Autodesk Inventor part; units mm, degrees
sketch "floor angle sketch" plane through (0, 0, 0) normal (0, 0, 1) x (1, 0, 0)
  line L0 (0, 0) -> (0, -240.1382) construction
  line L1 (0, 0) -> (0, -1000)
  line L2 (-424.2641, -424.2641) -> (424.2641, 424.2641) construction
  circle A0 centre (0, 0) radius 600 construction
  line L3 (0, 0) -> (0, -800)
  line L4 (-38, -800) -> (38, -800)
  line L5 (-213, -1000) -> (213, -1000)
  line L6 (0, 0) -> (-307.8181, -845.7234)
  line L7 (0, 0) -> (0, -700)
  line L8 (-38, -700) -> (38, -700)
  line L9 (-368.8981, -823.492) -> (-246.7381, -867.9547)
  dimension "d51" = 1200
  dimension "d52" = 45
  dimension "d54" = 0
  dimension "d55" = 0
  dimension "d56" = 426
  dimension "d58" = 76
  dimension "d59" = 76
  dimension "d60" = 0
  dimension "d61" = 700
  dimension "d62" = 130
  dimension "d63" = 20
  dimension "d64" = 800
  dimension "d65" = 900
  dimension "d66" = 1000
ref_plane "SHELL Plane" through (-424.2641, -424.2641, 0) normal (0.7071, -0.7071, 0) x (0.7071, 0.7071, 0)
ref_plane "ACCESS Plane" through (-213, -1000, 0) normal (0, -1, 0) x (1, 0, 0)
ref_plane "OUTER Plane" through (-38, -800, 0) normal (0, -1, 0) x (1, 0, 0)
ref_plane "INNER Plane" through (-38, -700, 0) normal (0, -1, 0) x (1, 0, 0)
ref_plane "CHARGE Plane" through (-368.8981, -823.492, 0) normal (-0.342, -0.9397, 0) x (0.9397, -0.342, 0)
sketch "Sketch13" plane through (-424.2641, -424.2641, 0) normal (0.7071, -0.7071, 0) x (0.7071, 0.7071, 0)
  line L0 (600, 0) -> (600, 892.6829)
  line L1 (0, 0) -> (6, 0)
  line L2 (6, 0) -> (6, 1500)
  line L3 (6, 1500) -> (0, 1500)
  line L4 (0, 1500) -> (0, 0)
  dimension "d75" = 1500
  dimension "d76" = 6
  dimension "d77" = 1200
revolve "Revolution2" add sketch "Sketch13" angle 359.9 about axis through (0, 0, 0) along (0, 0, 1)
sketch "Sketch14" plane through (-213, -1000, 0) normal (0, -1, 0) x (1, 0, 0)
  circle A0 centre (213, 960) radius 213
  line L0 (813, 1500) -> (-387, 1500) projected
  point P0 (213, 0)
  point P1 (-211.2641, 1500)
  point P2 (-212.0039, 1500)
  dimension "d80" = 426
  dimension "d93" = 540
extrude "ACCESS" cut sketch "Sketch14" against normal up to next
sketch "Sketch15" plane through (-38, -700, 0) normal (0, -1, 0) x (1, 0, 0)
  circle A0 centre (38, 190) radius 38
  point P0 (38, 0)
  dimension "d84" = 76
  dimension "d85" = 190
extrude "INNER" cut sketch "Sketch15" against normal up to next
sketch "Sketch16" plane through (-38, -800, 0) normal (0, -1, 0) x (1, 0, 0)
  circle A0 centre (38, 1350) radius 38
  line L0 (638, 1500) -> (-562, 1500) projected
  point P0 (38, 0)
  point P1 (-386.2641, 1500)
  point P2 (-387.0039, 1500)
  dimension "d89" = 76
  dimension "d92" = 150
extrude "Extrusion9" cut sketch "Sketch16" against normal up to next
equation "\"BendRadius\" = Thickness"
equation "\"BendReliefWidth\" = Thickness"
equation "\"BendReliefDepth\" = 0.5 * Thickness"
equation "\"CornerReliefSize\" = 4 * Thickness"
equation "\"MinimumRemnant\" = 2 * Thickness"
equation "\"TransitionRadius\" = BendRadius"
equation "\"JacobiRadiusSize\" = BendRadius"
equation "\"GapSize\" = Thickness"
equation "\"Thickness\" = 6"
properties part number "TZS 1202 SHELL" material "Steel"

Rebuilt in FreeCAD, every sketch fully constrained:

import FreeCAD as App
import Part
import Sketcher
Q = App.Units.Quantity

doc = App.newDocument("Part")
body = doc.addObject("PartDesign::Body", "Body")

sketch1 = doc.addObject("Sketcher::SketchObject", "Sketch")
body.addObject(sketch1)
sketch1.Placement = App.Placement(App.Vector(-424.2641, -424.2641, 0), App.Rotation(App.Vector(0.707106781, 0.707106781, 0), App.Vector(0, 0, 0.999999999), App.Vector(0.707106781, -0.707106781, 0), "ZXY"))
sketch1.addGeometry(Part.LineSegment(App.Vector(0, 1499.999998, 0), App.Vector(0, 0, 0)), False)
sketch1.addGeometry(Part.LineSegment(App.Vector(0, 0, 0), App.Vector(6, 0, 0)), False)
sketch1.addGeometry(Part.LineSegment(App.Vector(6, 0, 0), App.Vector(6, 1499.999998, 0)), False)
sketch1.addGeometry(Part.LineSegment(App.Vector(6, 1499.999998, 0), App.Vector(0, 1499.999998, 0)), False)
sketch1.addGeometry(Part.LineSegment(App.Vector(600.000044, 0, 0), App.Vector(600.000044, 1499.999997, 0)), True)
sketch1.addConstraint(Sketcher.Constraint("Coincident", 0, 2, 1, 1))
sketch1.addConstraint(Sketcher.Constraint("Coincident", 1, 2, 2, 1))
sketch1.addConstraint(Sketcher.Constraint("Coincident", 2, 2, 3, 1))
sketch1.addConstraint(Sketcher.Constraint("Coincident", 3, 2, 0, 1))
sketch1.addConstraint(Sketcher.Constraint("Vertical", 0))
sketch1.addConstraint(Sketcher.Constraint("Horizontal", 1))
sketch1.addConstraint(Sketcher.Constraint("Vertical", 2))
sketch1.addConstraint(Sketcher.Constraint("Horizontal", 3))
sketch1.addConstraint(Sketcher.Constraint("Vertical", 4))
sketch1.addConstraint(Sketcher.Constraint("Coincident", 0, 2, -1, 1))
sketch1.addConstraint(Sketcher.Constraint("PointOnObject", 4, 1, -1))
sketch1.addConstraint(Sketcher.Constraint("Horizontal", 3, 2, 4, 2))
sketch1.addConstraint(Sketcher.Constraint("DistanceX", 1, 1, 1, 2, Q("6 mm")))
sketch1.addConstraint(Sketcher.Constraint("DistanceY", 0, 2, 0, 1, Q("1500 mm")))
sketch1.addConstraint(Sketcher.Constraint("DistanceX", -1, 1, 4, 1, Q("600 mm")))
revolution = doc.addObject("PartDesign::Revolution", "Revolution")
body.addObject(revolution)
revolution.Profile = sketch1
revolution.ReferenceAxis = (sketch1, ["Axis0"])
revolution.Angle = 359.9

sketch2 = doc.addObject("Sketcher::SketchObject", "Sketch001")
body.addObject(sketch2)
sketch2.AttachmentSupport = (doc.XZ_Plane, [""])
sketch2.MapMode = "FlatFace"
sketch2.AttachmentOffset = App.Placement(App.Vector(0, 0, 1000), App.Rotation())
sketch2.addGeometry(Part.Circle(App.Vector(0, 960, 0), App.Vector(0, 0, 1), 213), False)
sketch2.addConstraint(Sketcher.Constraint("PointOnObject", 0, 3, -2))
sketch2.addConstraint(Sketcher.Constraint("Diameter", 0, Q("426 mm")))
sketch2.addConstraint(Sketcher.Constraint("DistanceY", -1, 1, 0, 3, Q("960 mm")))
pocket1 = doc.addObject("PartDesign::Pocket", "Pocket")
body.addObject(pocket1)
pocket1.Profile = sketch2
pocket1.Length = 445.5029

sketch3 = doc.addObject("Sketcher::SketchObject", "Sketch002")
body.addObject(sketch3)
sketch3.AttachmentSupport = (doc.XZ_Plane, [""])
sketch3.MapMode = "FlatFace"
sketch3.AttachmentOffset = App.Placement(App.Vector(0, 0, 700), App.Rotation())
sketch3.addGeometry(Part.Circle(App.Vector(0, 190, 0), App.Vector(0, 0, 1), 38), False)
sketch3.addConstraint(Sketcher.Constraint("PointOnObject", 0, 3, -2))
sketch3.addConstraint(Sketcher.Constraint("Diameter", 0, Q("76 mm")))
sketch3.addConstraint(Sketcher.Constraint("DistanceY", -1, 1, 0, 3, Q("190 mm")))
pocket2 = doc.addObject("PartDesign::Pocket", "Pocket001")
body.addObject(pocket2)
pocket2.Profile = sketch3
pocket2.Length = 107.2167

sketch4 = doc.addObject("Sketcher::SketchObject", "Sketch003")
body.addObject(sketch4)
sketch4.AttachmentSupport = (doc.XZ_Plane, [""])
sketch4.MapMode = "FlatFace"
sketch4.AttachmentOffset = App.Placement(App.Vector(0, 0, 800), App.Rotation())
sketch4.addGeometry(Part.Circle(App.Vector(0, 1350, 0), App.Vector(0, 0, 1), 38), False)
sketch4.addConstraint(Sketcher.Constraint("PointOnObject", 0, 3, -2))
sketch4.addConstraint(Sketcher.Constraint("Diameter", 0, Q("76 mm")))
sketch4.addConstraint(Sketcher.Constraint("DistanceY", -1, 1, 0, 3, Q("1350 mm")))
pocket3 = doc.addObject("PartDesign::Pocket", "Pocket002")
body.addObject(pocket3)
pocket3.Profile = sketch4
pocket3.Length = 207.2167

doc.recompute()
